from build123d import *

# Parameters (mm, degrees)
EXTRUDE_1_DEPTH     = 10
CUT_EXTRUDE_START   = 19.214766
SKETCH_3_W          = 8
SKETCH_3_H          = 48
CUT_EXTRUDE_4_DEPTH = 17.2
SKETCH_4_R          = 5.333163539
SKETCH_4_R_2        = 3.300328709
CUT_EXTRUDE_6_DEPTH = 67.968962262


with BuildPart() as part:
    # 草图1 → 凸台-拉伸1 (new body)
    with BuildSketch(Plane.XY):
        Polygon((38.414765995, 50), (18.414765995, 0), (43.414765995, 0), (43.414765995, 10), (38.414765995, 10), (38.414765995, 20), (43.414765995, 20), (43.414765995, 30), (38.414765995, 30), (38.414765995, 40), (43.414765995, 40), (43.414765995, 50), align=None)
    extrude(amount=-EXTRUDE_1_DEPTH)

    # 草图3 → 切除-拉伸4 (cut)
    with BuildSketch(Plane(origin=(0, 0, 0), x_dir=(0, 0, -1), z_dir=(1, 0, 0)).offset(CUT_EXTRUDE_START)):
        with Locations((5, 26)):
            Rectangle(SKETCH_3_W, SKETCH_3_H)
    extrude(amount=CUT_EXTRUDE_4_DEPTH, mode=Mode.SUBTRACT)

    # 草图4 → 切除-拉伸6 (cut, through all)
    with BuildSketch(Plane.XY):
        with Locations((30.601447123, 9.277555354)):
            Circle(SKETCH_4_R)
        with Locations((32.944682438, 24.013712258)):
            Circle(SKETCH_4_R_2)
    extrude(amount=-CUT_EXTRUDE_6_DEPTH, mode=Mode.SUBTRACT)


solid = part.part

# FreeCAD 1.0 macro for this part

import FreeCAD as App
import Part
import Sketcher
from FreeCAD import Vector
Q = App.Units.Quantity


def add_polygon(sketch, points):
    """Adds a closed chain of lines whose ends are joined by coincident constraints."""
    first, n = sketch.GeometryCount, len(points)
    for a, b in zip(points, points[1:] + points[:1]):
        sketch.addGeometry(Part.LineSegment(App.Vector(*a, 0), App.Vector(*b, 0)), False)
    for i in range(n):
        sketch.addConstraint(Sketcher.Constraint("Coincident", first + i, 2, first + (i + 1) % n, 1))

doc = App.newDocument("Part")
body = doc.addObject("PartDesign::Body", "Body")

# Sketch on XY plane
sketch1 = body.newObject("Sketcher::SketchObject", "Sketch")
sketch1.AttachmentSupport = (doc.getObject("XY_Plane"), [""])
sketch1.MapMode = "FlatFace"
add_polygon(sketch1, [(38, 50), (18, 0), (43, 0), (43, 10), (38, 10), (38, 20), (43, 20), (43, 30), (38, 30), (38, 40), (43, 40), (43, 50)])  # lines 0-11
sketch1.addConstraint([
    Sketcher.Constraint("Horizontal", 1),
    Sketcher.Constraint("Vertical", 2),
    Sketcher.Constraint("Horizontal", 3),
    Sketcher.Constraint("Vertical", 4),
    Sketcher.Constraint("Horizontal", 5),
    Sketcher.Constraint("Vertical", 6),
    Sketcher.Constraint("Horizontal", 7),
    Sketcher.Constraint("Vertical", 8),
    Sketcher.Constraint("Horizontal", 9),
    Sketcher.Constraint("Vertical", 10),
    Sketcher.Constraint("Horizontal", 11),
    Sketcher.Constraint("PointOnObject", 0, 2, -1),
    Sketcher.Constraint("Vertical", 2, 2, 5, 2),
    Sketcher.Constraint("Vertical", 4, 2, 7, 2),
    Sketcher.Constraint("Vertical", 6, 2, 9, 2),
    Sketcher.Constraint("Vertical", 8, 2, 11, 2),
    Sketcher.Constraint("Equal", 2, 4),
    Sketcher.Constraint("Equal", 4, 6),
    Sketcher.Constraint("Equal", 6, 8),
    Sketcher.Constraint("Equal", 8, 10),
    Sketcher.Constraint("DistanceX", 1, 1, 1, 2, Q("25 mm")),
    Sketcher.Constraint("DistanceX", 3, 2, 3, 1, Q("5 mm")),
    Sketcher.Constraint("DistanceY", 2, 1, 2, 2, Q("10 mm")),
    Sketcher.Constraint("DistanceX", -1, 1, 0, 2, Q("18.414766 mm")),
])
pad1 = body.newObject("PartDesign::Pad", "Pad")
pad1.Profile = sketch1
pad1.Length = 10
pad1.Reversed = True

# Sketch on YZ plane
sketch2 = body.newObject("Sketcher::SketchObject", "Sketch001")
sketch2.AttachmentSupport = (doc.getObject("YZ_Plane"), [""])
sketch2.MapMode = "FlatFace"
sketch2.AttachmentOffset = App.Placement(Vector(0, 0, 19.214766), App.Rotation())
add_polygon(sketch2, [(50, -1), (2, -1), (2, -9), (50, -9)])  # lines 0-3
sketch2.addConstraint([
    Sketcher.Constraint("Horizontal", 0),
    Sketcher.Constraint("Vertical", 1),
    Sketcher.Constraint("Horizontal", 2),
    Sketcher.Constraint("Vertical", 3),
    Sketcher.Constraint("DistanceX", 0, 2, 0, 1, Q("48 mm")),
    Sketcher.Constraint("DistanceY", 1, 2, 1, 1, Q("8 mm")),
    Sketcher.Constraint("DistanceX", -1, 1, 0, 2, Q("2 mm")),
    Sketcher.Constraint("DistanceY", 0, 2, -1, 1, Q("1 mm")),
])
pocket1 = body.newObject("PartDesign::Pocket", "Pocket")
pocket1.Profile = sketch2
pocket1.Length = 17.2
pocket1.Reversed = True

# Sketch on XY plane
sketch3 = body.newObject("Sketcher::SketchObject", "Sketch002")
sketch3.AttachmentSupport = (doc.getObject("XY_Plane"), [""])
sketch3.MapMode = "FlatFace"
sketch3.addGeometry([
    Part.Circle(Vector(30.6, 9.3, 0), Vector(0, 0, 1), 5.3),
    Part.Circle(Vector(32.9, 24, 0), Vector(0, 0, 1), 3.3),
], False)
sketch3.addConstraint([
    Sketcher.Constraint("Diameter", 0, Q("10.666327 mm")),
    Sketcher.Constraint("Diameter", 1, Q("6.600657 mm")),
    Sketcher.Constraint("DistanceX", -1, 1, 0, 3, Q("30.601447 mm")),
    Sketcher.Constraint("DistanceY", -1, 1, 0, 3, Q("9.277555 mm")),
    Sketcher.Constraint("DistanceX", -1, 1, 1, 3, Q("32.944682 mm")),
    Sketcher.Constraint("DistanceY", -1, 1, 1, 3, Q("24.013712 mm")),
])
pocket2 = body.newObject("PartDesign::Pocket", "Pocket001")
pocket2.Profile = sketch3
pocket2.Type = "ThroughAll"

doc.recompute()
